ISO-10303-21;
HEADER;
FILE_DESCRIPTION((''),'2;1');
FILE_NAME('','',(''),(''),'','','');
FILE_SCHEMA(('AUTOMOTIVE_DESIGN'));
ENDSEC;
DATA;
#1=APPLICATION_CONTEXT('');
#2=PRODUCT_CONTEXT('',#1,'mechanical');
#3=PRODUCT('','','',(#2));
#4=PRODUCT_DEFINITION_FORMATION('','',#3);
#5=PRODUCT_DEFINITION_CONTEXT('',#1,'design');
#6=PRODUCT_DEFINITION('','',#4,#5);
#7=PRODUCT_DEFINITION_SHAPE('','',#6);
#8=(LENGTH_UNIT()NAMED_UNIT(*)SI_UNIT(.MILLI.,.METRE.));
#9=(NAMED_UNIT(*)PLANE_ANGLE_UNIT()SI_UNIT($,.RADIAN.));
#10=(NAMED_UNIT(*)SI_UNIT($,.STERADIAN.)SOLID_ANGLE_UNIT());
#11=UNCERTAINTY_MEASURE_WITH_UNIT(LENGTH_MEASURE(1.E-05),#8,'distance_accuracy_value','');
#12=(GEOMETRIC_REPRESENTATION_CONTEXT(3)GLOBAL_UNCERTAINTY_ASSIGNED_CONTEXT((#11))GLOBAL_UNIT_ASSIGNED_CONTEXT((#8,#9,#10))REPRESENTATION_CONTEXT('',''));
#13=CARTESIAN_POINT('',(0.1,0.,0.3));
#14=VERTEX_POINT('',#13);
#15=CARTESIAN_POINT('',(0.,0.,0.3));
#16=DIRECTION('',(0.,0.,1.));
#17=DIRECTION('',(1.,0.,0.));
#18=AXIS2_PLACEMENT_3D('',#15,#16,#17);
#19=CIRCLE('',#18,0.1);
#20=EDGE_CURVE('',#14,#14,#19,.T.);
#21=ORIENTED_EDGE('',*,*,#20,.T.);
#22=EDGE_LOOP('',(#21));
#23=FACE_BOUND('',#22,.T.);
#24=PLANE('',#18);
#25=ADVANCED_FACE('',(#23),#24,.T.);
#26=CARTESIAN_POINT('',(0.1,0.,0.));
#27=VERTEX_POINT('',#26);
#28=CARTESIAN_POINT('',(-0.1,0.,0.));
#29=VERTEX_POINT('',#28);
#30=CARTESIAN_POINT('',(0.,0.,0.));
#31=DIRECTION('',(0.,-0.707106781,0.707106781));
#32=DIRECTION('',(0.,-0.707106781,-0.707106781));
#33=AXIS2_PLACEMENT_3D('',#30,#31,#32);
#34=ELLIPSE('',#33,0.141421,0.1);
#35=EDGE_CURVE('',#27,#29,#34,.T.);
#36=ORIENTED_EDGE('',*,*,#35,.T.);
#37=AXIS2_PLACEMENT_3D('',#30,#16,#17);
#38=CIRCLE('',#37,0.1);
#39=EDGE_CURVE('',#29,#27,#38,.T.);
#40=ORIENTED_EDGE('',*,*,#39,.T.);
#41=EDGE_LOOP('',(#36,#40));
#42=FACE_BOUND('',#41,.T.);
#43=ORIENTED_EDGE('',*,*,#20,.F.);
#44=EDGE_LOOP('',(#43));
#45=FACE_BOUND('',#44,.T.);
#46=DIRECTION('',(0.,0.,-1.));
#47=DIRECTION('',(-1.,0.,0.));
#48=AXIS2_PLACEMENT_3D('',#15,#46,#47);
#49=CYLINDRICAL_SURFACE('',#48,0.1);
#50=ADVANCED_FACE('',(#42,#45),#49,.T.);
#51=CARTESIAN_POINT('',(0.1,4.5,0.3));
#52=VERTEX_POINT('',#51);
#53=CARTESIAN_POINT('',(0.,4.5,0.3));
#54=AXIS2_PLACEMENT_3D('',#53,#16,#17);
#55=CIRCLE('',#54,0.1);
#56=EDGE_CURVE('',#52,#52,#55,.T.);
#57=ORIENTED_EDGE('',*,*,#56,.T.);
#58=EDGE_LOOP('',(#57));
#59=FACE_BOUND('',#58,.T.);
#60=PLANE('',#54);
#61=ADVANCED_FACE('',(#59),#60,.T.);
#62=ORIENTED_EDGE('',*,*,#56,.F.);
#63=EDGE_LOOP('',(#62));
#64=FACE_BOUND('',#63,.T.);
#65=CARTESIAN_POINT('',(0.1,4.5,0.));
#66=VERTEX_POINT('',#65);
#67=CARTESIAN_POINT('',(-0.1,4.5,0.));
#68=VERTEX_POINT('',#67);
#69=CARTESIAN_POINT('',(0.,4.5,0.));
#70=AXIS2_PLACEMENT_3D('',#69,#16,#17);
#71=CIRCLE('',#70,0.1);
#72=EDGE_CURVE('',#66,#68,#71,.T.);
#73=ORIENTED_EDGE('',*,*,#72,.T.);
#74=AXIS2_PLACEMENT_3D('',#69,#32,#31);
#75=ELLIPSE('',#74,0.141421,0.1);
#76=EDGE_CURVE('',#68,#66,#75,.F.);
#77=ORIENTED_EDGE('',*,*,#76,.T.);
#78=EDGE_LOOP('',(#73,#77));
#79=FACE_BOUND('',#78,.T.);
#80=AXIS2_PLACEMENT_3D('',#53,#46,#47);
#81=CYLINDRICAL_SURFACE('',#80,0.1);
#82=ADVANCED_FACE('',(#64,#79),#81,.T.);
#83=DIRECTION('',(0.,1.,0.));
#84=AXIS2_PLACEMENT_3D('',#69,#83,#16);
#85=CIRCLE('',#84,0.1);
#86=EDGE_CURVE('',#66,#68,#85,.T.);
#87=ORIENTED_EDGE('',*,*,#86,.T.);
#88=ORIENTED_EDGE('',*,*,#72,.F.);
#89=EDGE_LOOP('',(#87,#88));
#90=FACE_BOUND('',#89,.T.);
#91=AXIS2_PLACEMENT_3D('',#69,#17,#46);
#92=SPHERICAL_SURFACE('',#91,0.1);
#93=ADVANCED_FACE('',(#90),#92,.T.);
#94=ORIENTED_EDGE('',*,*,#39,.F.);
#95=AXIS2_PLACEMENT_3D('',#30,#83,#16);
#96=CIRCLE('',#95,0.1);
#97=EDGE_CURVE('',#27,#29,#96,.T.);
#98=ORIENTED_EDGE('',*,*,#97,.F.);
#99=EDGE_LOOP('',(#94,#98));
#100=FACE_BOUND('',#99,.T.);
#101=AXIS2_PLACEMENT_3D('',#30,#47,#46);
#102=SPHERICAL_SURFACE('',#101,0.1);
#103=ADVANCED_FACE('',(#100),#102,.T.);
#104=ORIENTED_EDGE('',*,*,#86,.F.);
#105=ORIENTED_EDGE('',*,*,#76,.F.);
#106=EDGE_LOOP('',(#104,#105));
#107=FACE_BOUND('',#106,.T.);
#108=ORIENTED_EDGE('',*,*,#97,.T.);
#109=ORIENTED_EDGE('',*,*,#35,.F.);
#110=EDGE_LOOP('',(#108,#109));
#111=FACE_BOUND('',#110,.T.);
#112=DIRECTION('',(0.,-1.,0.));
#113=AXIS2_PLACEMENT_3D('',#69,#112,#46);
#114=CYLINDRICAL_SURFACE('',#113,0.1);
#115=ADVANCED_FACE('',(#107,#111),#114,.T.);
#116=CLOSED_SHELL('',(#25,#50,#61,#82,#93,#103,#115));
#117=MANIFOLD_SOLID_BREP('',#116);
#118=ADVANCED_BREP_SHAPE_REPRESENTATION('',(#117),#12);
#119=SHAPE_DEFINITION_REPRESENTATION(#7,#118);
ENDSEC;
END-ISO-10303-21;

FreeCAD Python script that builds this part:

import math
import FreeCAD as App
import Part
import Sketcher
from FreeCAD import Vector
Q = App.Units.Quantity

doc = App.newDocument("Part")
body = doc.addObject("PartDesign::Body", "Body")

# Sketch on XZ plane
sketch1 = body.newObject("Sketcher::SketchObject", "Sketch")
sketch1.AttachmentSupport = (doc.getObject("XZ_Plane"), [""])
sketch1.MapMode = "FlatFace"
sketch1.addGeometry(Part.Circle(Vector(0, 0, 0), Vector(0, 0, 1), 0.1), False)
sketch1.addConstraint(Sketcher.Constraint("Coincident", 0, 3, -1, 1))
sketch1.addConstraint(Sketcher.Constraint("Diameter", 0, Q("0.2 mm")))
pad1 = body.newObject("PartDesign::Pad", "Pad")
pad1.Profile = sketch1
pad1.Length = 4.5
pad1.Reversed = True

# Sketch on XY plane
sketch2 = body.newObject("Sketcher::SketchObject", "Sketch001")
sketch2.AttachmentSupport = (doc.getObject("XY_Plane"), [""])
sketch2.MapMode = "FlatFace"
sketch2.addGeometry(Part.Circle(Vector(0, 4.5, 0), Vector(0, 0, 1), 0.1), False)
sketch2.addGeometry(Part.Circle(Vector(0, 0, 0), Vector(0, 0, 1), 0.1), False)
sketch2.addConstraint(Sketcher.Constraint("Coincident", 1, 3, -1, 1))
sketch2.addConstraint(Sketcher.Constraint("Equal", 0, 1))
sketch2.addConstraint(Sketcher.Constraint("PointOnObject", 0, 3, -2))
sketch2.addConstraint(Sketcher.Constraint("Diameter", 0, Q("0.2 mm")))
sketch2.addConstraint(Sketcher.Constraint("DistanceY", -1, 1, 0, 3, Q("4.5 mm")))
pad2 = body.newObject("PartDesign::Pad", "Pad001")
pad2.Profile = sketch2
pad2.Length = 0.3

# Sketch on XY plane
sketch3 = body.newObject("Sketcher::SketchObject", "Sketch002")
sketch3.AttachmentSupport = (doc.getObject("XY_Plane"), [""])
sketch3.MapMode = "FlatFace"
sketch3.addGeometry(Part.LineSegment(Vector(0.1, 4.5, 0), Vector(-0.1, 4.5, 0)), False)
sketch3.addGeometry(Part.ArcOfCircle(Part.Circle(Vector(0, 4.5, 0), Vector(0, 0, 1), 0.1), math.radians(0), math.radians(180)), False)
sketch3.addGeometry(Part.LineSegment(Vector(0.1, 4.5, 0), Vector(-0.1, 4.5, 0)), True)  # axis
sketch3.addConstraint(Sketcher.Constraint("Coincident", 0, 1, 1, 1))
sketch3.addConstraint(Sketcher.Constraint("Coincident", 1, 2, 0, 2))
sketch3.addConstraint(Sketcher.Constraint("Horizontal", 0))
sketch3.addConstraint(Sketcher.Constraint("Horizontal", 2))
sketch3.addConstraint(Sketcher.Constraint("Coincident", 2, 1, 0, 1))
sketch3.addConstraint(Sketcher.Constraint("PointOnObject", 1, 3, -2))
sketch3.addConstraint(Sketcher.Constraint("Horizontal", 1, 3, 0, 1))
sketch3.addConstraint(Sketcher.Constraint("Equal", 0, 2))
sketch3.addConstraint(Sketcher.Constraint("Radius", 1, Q("0.1 mm")))
sketch3.addConstraint(Sketcher.Constraint("DistanceY", -1, 1, 1, 3, Q("4.5 mm")))
revolution = body.newObject("PartDesign::Revolution", "Revolution")
revolution.Profile = sketch3
revolution.ReferenceAxis = (sketch3, ["Axis0"])
revolution.Angle = 90

# Sketch on XY plane
sketch4 = body.newObject("Sketcher::SketchObject", "Sketch003")
sketch4.AttachmentSupport = (doc.getObject("XY_Plane"), [""])
sketch4.MapMode = "FlatFace"
sketch4.addGeometry(Part.LineSegment(Vector(-0.1, 0, 0), Vector(0.1, 0, 0)), False)
sketch4.addGeometry(Part.ArcOfCircle(Part.Circle(Vector(0, 0, 0), Vector(0, 0, 1), 0.1), math.radians(180), math.radians(360)), False)
sketch4.addConstraint(Sketcher.Constraint("Coincident", 0, 1, 1, 1))
sketch4.addConstraint(Sketcher.Constraint("Coincident", 1, 2, 0, 2))
sketch4.addConstraint(Sketcher.Constraint("Horizontal", 0))
sketch4.addConstraint(Sketcher.Constraint("Coincident", 1, 3, -1, 1))
sketch4.addConstraint(Sketcher.Constraint("PointOnObject", 0, 1, -1))
sketch4.addConstraint(Sketcher.Constraint("Radius", 1, Q("0.1 mm")))
revolution2 = body.newObject("PartDesign::Revolution", "Revolution001")
revolution2.Profile = sketch4
revolution2.ReferenceAxis = (sketch4, ["H_Axis"])
revolution2.Angle = 90

doc.recompute()
